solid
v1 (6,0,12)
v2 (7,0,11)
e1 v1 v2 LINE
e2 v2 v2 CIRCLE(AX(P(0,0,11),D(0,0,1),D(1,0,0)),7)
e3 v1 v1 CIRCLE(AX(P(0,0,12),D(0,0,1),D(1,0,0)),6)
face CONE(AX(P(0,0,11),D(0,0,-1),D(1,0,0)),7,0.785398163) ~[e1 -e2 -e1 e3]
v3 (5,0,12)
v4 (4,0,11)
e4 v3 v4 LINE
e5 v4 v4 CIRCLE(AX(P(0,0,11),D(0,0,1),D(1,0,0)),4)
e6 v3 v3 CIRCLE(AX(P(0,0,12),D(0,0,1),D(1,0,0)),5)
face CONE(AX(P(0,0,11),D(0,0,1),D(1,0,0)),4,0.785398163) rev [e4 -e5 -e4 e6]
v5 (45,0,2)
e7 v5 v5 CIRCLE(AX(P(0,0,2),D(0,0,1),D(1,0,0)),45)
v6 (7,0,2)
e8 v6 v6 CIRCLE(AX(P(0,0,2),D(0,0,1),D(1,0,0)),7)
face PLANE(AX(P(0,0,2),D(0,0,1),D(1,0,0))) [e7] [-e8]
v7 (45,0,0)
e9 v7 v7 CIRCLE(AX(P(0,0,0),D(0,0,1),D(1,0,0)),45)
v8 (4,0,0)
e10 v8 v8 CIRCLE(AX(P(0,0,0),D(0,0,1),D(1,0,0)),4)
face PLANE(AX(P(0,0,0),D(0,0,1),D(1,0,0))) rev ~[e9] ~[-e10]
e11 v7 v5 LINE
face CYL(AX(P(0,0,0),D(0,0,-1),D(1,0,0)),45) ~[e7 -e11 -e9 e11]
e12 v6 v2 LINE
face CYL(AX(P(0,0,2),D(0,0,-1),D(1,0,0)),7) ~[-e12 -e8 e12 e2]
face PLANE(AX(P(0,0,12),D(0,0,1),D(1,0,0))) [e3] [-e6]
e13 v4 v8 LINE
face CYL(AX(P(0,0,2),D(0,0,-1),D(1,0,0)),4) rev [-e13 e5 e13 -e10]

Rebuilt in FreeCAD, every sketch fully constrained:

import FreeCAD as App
import Part
import Sketcher

V = App.Vector
Q = App.Units.Quantity


def edges_at(feature, points):
    """Names of the edges that pass closest to the given points."""
    edges = feature.Shape.Edges
    near = lambda p: min(range(len(edges)), key=lambda i: edges[i].distToShape(Part.Vertex(*p))[0])
    return sorted({f"Edge{near(p) + 1}" for p in points})

doc = App.newDocument("Part")
body = doc.addObject("PartDesign::Body", "Body")

# Sketch on XY plane
sketch1 = body.newObject("Sketcher::SketchObject", "Sketch")
sketch1.AttachmentSupport = (doc.getObject("XY_Plane"), [""])
sketch1.MapMode = "FlatFace"
sketch1.addGeometry([
    Part.Circle(V(0, 0, 0), V(0, 0, 1), 45),
    Part.Circle(V(0, 0, 0), V(0, 0, 1), 4),
], False)
sketch1.addConstraint([
    Sketcher.Constraint("Coincident", 0, 3, -1, 1),
    Sketcher.Constraint("Coincident", 1, 3, -1, 1),
    Sketcher.Constraint("Diameter", 0, Q("90 mm")),
    Sketcher.Constraint("Diameter", 1, Q("8 mm")),
])
pad1 = body.newObject("PartDesign::Pad", "Pad")
pad1.Profile = sketch1
pad1.Length = 2

# Sketch on XY plane
sketch2 = body.newObject("Sketcher::SketchObject", "Sketch001")
sketch2.AttachmentSupport = (doc.getObject("XY_Plane"), [""])
sketch2.MapMode = "FlatFace"
sketch2.AttachmentOffset = App.Placement(V(0, 0, 2), App.Rotation())
sketch2.addGeometry([
    Part.Circle(V(0, 0, 0), V(0, 0, 1), 7),
    Part.Circle(V(0, 0, 0), V(0, 0, 1), 4),
], False)
sketch2.addConstraint([
    Sketcher.Constraint("Coincident", 0, 3, -1, 1),
    Sketcher.Constraint("Coincident", 1, 3, -1, 1),
    Sketcher.Constraint("Diameter", 0, Q("14 mm")),
    Sketcher.Constraint("Diameter", 1, Q("8 mm")),
])
pad2 = body.newObject("PartDesign::Pad", "Pad001")
pad2.Profile = sketch2
pad2.Length = 10
doc.recompute()

chamfer = body.newObject("PartDesign::Chamfer", "Chamfer")
chamfer.Base = (pad2, edges_at(pad2, [(-4, 0, 12)]))
chamfer.Size = 1
doc.recompute()

chamfer2 = body.newObject("PartDesign::Chamfer", "Chamfer001")
chamfer2.Base = (chamfer, edges_at(chamfer, [(-7, 0, 12)]))
chamfer2.Size = 1

doc.recompute()
